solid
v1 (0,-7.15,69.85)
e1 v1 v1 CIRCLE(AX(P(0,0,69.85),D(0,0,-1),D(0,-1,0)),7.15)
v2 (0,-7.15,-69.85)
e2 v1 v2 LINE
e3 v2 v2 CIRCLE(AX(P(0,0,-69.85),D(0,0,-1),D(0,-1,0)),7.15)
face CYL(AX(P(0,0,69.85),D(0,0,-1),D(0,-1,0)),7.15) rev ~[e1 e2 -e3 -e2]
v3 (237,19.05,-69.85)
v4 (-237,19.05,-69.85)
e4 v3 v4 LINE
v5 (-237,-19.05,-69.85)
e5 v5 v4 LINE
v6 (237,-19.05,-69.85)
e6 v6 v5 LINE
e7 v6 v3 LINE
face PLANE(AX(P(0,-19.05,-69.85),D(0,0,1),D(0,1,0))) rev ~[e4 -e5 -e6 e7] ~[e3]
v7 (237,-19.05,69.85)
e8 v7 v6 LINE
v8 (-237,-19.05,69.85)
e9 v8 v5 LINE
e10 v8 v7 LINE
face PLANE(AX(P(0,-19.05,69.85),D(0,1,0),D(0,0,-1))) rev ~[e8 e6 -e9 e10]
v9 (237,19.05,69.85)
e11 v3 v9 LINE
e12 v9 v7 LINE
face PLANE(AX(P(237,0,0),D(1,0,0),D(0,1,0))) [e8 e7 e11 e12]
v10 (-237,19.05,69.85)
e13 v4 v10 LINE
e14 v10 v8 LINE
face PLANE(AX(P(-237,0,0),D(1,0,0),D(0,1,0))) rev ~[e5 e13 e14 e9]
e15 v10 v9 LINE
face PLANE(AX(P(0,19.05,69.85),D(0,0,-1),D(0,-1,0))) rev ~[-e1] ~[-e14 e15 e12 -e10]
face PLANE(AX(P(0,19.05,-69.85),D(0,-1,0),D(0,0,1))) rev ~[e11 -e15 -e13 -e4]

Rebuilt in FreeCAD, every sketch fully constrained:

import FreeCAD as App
import Part
import Sketcher
Q = App.Units.Quantity


def add_polygon(sketch, points):
    """Adds a closed chain of lines whose ends are joined by coincident constraints."""
    first, n = sketch.GeometryCount, len(points)
    for a, b in zip(points, points[1:] + points[:1]):
        sketch.addGeometry(Part.LineSegment(App.Vector(*a, 0), App.Vector(*b, 0)), False)
    for i in range(n):
        sketch.addConstraint(Sketcher.Constraint("Coincident", first + i, 2, first + (i + 1) % n, 1))

doc = App.newDocument("Part")
params = doc.addObject("Spreadsheet::Sheet", "Params")
for row, (alias, value) in enumerate([
    ("sketch1_width", "1.5 in"),
    ("sketch1_height", "5.5 in"),
    ("pad1_length", "474 mm"),
    ("sketch2_diameter", "0.563 in"),
    ("hole_diameter", "0.5629921 in"),
], start=1):
    params.set(f"A{row}", alias)
    params.set(f"B{row}", "=" + value)
    params.setAlias(f"B{row}", alias)

body = doc.addObject("PartDesign::Body", "Body")

sketch1 = body.newObject("Sketcher::SketchObject", "Sketch")
sketch1.AttachmentSupport = (doc.getObject("YZ_Plane"), [""])
sketch1.MapMode = "FlatFace"
add_polygon(sketch1, [(19, -70), (19, 70), (-19, 70), (-19, -70)])
sketch1.addConstraint([
    Sketcher.Constraint("Vertical", 0),
    Sketcher.Constraint("Horizontal", 1),
    Sketcher.Constraint("Vertical", 2),
    Sketcher.Constraint("Horizontal", 3),
    Sketcher.Constraint("Symmetric", 0, 2, 2, 2, -1, 1),
    Sketcher.Constraint("DistanceX", 1, 2, 1, 1, Q("1.5 in")),
    Sketcher.Constraint("DistanceY", 0, 1, 0, 2, Q("5.5 in")),
])
sketch1.setExpression("Constraints[9]", "Params.sketch1_width")
sketch1.setExpression("Constraints[10]", "Params.sketch1_height")
pad1 = body.newObject("PartDesign::Pad", "Pad")
pad1.Profile = sketch1
pad1.setExpression("Length", "Params.pad1_length")
pad1.Midplane = True

sketch2 = body.newObject("Sketcher::SketchObject", "Sketch001")
sketch2.AttachmentSupport = (doc.getObject("XY_Plane"), [""])
sketch2.MapMode = "FlatFace"
sketch2.AttachmentOffset = App.Placement(App.Vector(0, 0, 2.75 * 25.4), App.Rotation())
sketch2.addGeometry(Part.Circle(App.Vector(0, 0, 0), App.Vector(0, 0, 1), 7), False)
sketch2.addConstraint([
    Sketcher.Constraint("Coincident", 0, 3, -1, 1),
    Sketcher.Constraint("Diameter", 0, Q("0.563 in")),
])
sketch2.setExpression("Constraints[1]", "Params.sketch2_diameter")
doc.recompute()
hole = body.newObject("PartDesign::Hole", "Hole")
hole.Profile = sketch2
hole.ThreadType = "None"
hole.setExpression("Diameter", "Params.hole_diameter")
hole.DepthType = "ThroughAll"

doc.recompute()
